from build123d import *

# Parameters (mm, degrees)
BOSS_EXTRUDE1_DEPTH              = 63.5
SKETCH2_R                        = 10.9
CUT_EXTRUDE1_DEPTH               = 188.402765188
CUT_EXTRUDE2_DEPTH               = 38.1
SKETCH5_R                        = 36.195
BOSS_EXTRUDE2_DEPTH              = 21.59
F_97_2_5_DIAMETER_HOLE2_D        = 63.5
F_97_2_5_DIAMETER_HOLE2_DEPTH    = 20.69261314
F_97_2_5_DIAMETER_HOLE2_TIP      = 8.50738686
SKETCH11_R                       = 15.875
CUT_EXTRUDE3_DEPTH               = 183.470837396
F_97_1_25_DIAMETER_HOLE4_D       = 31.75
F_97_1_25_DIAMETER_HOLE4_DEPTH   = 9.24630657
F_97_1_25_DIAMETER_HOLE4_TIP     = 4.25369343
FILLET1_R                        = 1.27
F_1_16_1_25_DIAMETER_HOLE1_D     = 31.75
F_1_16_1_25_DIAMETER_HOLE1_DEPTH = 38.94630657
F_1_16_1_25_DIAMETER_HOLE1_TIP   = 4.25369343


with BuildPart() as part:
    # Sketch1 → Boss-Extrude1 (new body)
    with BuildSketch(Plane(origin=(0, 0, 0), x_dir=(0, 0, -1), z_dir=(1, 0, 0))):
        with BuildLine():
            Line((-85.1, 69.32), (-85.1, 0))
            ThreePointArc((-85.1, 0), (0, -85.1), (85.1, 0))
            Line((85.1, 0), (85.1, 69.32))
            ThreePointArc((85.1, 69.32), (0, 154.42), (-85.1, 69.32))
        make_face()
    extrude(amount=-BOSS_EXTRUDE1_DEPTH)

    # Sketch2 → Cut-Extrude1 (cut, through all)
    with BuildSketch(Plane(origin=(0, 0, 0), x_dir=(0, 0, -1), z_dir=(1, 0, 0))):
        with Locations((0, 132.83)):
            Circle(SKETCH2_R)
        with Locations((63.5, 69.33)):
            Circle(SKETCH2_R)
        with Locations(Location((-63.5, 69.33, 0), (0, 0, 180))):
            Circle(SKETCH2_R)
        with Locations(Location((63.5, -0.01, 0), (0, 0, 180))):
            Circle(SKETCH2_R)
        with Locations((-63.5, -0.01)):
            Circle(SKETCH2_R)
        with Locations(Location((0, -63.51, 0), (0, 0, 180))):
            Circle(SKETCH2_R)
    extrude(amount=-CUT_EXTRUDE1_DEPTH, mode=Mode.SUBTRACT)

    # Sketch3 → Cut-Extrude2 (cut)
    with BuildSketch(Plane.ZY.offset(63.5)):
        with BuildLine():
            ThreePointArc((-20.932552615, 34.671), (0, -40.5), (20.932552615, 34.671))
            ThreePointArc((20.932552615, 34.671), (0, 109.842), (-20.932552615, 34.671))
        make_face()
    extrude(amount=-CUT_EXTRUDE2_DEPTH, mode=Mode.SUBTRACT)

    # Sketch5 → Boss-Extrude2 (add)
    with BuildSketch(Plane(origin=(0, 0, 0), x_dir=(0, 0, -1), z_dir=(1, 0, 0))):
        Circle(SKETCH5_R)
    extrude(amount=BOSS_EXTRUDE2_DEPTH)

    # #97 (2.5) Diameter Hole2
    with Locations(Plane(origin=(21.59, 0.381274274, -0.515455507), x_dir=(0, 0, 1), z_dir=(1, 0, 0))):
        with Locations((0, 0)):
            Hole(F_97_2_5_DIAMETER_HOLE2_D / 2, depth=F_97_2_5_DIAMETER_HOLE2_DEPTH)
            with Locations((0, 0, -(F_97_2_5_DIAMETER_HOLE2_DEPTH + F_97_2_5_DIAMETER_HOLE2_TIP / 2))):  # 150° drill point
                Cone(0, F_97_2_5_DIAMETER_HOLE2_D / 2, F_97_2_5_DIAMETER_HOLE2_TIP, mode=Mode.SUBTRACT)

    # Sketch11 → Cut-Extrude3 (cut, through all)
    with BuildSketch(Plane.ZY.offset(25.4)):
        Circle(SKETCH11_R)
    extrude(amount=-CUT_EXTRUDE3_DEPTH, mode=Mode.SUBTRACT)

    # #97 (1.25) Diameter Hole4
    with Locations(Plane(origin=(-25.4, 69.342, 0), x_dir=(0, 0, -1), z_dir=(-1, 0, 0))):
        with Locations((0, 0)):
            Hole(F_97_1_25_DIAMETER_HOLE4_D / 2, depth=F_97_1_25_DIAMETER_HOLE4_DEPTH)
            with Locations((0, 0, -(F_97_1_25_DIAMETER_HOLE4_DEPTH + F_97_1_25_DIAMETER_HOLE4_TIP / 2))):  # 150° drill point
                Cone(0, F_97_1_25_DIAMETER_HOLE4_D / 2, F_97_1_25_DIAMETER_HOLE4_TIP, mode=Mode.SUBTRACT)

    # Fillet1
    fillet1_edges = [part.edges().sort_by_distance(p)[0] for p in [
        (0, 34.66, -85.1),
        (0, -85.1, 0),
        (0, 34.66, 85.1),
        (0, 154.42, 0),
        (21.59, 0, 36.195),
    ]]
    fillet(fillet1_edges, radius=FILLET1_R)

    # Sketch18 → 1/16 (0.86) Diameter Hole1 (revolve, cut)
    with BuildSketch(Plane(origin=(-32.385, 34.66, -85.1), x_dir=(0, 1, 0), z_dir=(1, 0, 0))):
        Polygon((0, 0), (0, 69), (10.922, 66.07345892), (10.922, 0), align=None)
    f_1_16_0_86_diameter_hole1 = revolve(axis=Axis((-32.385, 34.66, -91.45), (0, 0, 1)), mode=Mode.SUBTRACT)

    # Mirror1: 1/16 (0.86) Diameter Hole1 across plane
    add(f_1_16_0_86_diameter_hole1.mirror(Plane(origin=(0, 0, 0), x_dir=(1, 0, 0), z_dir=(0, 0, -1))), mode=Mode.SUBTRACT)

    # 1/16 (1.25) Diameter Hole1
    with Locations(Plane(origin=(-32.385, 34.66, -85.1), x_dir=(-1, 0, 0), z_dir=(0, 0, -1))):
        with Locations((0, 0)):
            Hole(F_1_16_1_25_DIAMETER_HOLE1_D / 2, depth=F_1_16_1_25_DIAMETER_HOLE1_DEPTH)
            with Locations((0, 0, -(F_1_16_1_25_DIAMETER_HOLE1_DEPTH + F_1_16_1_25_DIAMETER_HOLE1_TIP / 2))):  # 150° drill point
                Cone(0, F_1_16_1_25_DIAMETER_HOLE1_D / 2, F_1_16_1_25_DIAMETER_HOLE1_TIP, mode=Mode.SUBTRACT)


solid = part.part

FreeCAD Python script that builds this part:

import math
import FreeCAD as App
import Part
import Sketcher
Q = App.Units.Quantity


def edges_at(feature, points):
    """Names of the edges that pass closest to the given points."""
    edges = feature.Shape.Edges
    near = lambda p: min(range(len(edges)), key=lambda i: edges[i].distToShape(Part.Vertex(*p))[0])
    return sorted({f"Edge{near(p) + 1}" for p in points})


def add_polygon(sketch, points):
    """Adds a closed chain of lines whose ends are joined by coincident constraints."""
    first, n = sketch.GeometryCount, len(points)
    for a, b in zip(points, points[1:] + points[:1]):
        sketch.addGeometry(Part.LineSegment(App.Vector(*a, 0), App.Vector(*b, 0)), False)
    for i in range(n):
        sketch.addConstraint(Sketcher.Constraint("Coincident", first + i, 2, first + (i + 1) % n, 1))

doc = App.newDocument("Part")
params = doc.addObject("Spreadsheet::Sheet", "Params")
for row, (alias, value) in enumerate([
    ("pad1_length", "2.5 in"),
    ("pocket2_length", "1.5 in"),
    ("sketch4_diameter", "2.85 in"),
    ("pad2_length", "0.85 in"),
    ("sketch5_diameter", "2.5 in"),
    ("hole_diameter", "2.5 in"),
    ("hole_depth", "20.692613 mm"),
    ("sketch6_diameter", "1.25 in"),
    ("sketch7_diameter", "1.25 in"),
    ("hole2_diameter", "1.25 in"),
    ("hole2_depth", "9.246307 mm"),
    ("fillet_radius", "0.05 in"),
    ("sketch8_width", "0.43 in"),
    ("groove_angle", "360 deg"),
    ("sketch9_diameter", "1.25 in"),
    ("hole3_diameter", "1.25 in"),
    ("hole3_depth", "38.946307 mm"),
], start=1):
    params.set(f"A{row}", alias)
    params.set(f"B{row}", "=" + value)
    params.setAlias(f"B{row}", alias)

body = doc.addObject("PartDesign::Body", "Body")

# Sketch on YZ plane
sketch1 = doc.addObject("Sketcher::SketchObject", "Sketch")
body.addObject(sketch1)
sketch1.AttachmentSupport = (doc.YZ_Plane, [""])
sketch1.MapMode = "FlatFace"
sketch1.addGeometry(Part.LineSegment(App.Vector(69, 85, 0), App.Vector(0, 85, 0)), False)
sketch1.addGeometry(Part.ArcOfCircle(Part.Circle(App.Vector(0, 0, 0), App.Vector(0, 0, 1), 85), math.radians(90), math.radians(270)), False)
sketch1.addGeometry(Part.LineSegment(App.Vector(0, -85, 0), App.Vector(69, -85, 0)), False)
sketch1.addGeometry(Part.ArcOfCircle(Part.Circle(App.Vector(69, 0, 0), App.Vector(0, 0, 1), 85), math.radians(-90), math.radians(90)), False)
sketch1.addConstraint(Sketcher.Constraint("Tangent", 0, 2, 1, 1))
sketch1.addConstraint(Sketcher.Constraint("Tangent", 1, 2, 2, 1))
sketch1.addConstraint(Sketcher.Constraint("Tangent", 2, 2, 3, 1))
sketch1.addConstraint(Sketcher.Constraint("Tangent", 3, 2, 0, 1))
sketch1.addConstraint(Sketcher.Constraint("Horizontal", 0))
sketch1.addConstraint(Sketcher.Constraint("Horizontal", 2))
sketch1.addConstraint(Sketcher.Constraint("Coincident", 1, 3, -1, 1))
sketch1.addConstraint(Sketcher.Constraint("Radius", 1, Q("85.1 mm")))
sketch1.addConstraint(Sketcher.Constraint("DistanceX", 0, 2, 0, 1, Q("69.32 mm")))
pad1 = doc.addObject("PartDesign::Pad", "Pad")
body.addObject(pad1)
pad1.Profile = sketch1
pad1.setExpression("Length", "Params.pad1_length")
pad1.Reversed = True

# Sketch on YZ plane
sketch2 = doc.addObject("Sketcher::SketchObject", "Sketch001")
body.addObject(sketch2)
sketch2.AttachmentSupport = (doc.YZ_Plane, [""])
sketch2.MapMode = "FlatFace"
sketch2.addGeometry(Part.Circle(App.Vector(133, 0, 0), App.Vector(0, 0, 1), 11), False)
sketch2.addGeometry(Part.Circle(App.Vector(69, -64, 0), App.Vector(0, 0, 1), 11), False)
sketch2.addGeometry(Part.Circle(App.Vector(69, 64, 0), App.Vector(0, 0, 1), 11), False)
sketch2.addGeometry(Part.Circle(App.Vector(0, -64, 0), App.Vector(0, 0, 1), 11), False)
sketch2.addGeometry(Part.Circle(App.Vector(0, 64, 0), App.Vector(0, 0, 1), 11), False)
sketch2.addGeometry(Part.Circle(App.Vector(-64, 0, 0), App.Vector(0, 0, 1), 11), False)
sketch2.addConstraint(Sketcher.Constraint("Equal", 0, 1))
sketch2.addConstraint(Sketcher.Constraint("Equal", 1, 2))
sketch2.addConstraint(Sketcher.Constraint("Equal", 2, 3))
sketch2.addConstraint(Sketcher.Constraint("Equal", 3, 4))
sketch2.addConstraint(Sketcher.Constraint("Equal", 4, 5))
sketch2.addConstraint(Sketcher.Constraint("Symmetric", 1, 3, 2, 3, -1))
sketch2.addConstraint(Sketcher.Constraint("Symmetric", 3, 3, 4, 3, -1))
sketch2.addConstraint(Sketcher.Constraint("PointOnObject", 0, 3, -1))
sketch2.addConstraint(Sketcher.Constraint("PointOnObject", 5, 3, -1))
sketch2.addConstraint(Sketcher.Constraint("Horizontal", 1, 3, 3, 3))
sketch2.addConstraint(Sketcher.Constraint("DistanceY", 1, 3, 2, 3, Q("5 in")))
sketch2.addConstraint(Sketcher.Constraint("DistanceX", 1, 3, 0, 3, Q("2.5 in")))
sketch2.addConstraint(Sketcher.Constraint("DistanceX", 5, 3, 3, 3, Q("2.5 in")))
sketch2.addConstraint(Sketcher.Constraint("Diameter", 0, Q("21.8 mm")))
sketch2.addConstraint(Sketcher.Constraint("DistanceX", -1, 1, 0, 3, Q("132.83 mm")))
sketch2.addConstraint(Sketcher.Constraint("DistanceX", 3, 3, -1, 1, Q("0.01 mm")))
pocket1 = doc.addObject("PartDesign::Pocket", "Pocket")
body.addObject(pocket1)
pocket1.Profile = sketch2
pocket1.Type = "ThroughAll"

# Sketch on YZ plane
sketch3 = doc.addObject("Sketcher::SketchObject", "Sketch002")
body.addObject(sketch3)
sketch3.AttachmentSupport = (doc.YZ_Plane, [""])
sketch3.MapMode = "FlatFace"
sketch3.AttachmentOffset = App.Placement(App.Vector(0, 0, -2.5 * 25.4), App.Rotation())
sketch3.addGeometry(Part.ArcOfCircle(Part.Circle(App.Vector(0, 0, 0), App.Vector(0, 0, 1), 40), math.radians(31), math.radians(329)), False)
sketch3.addGeometry(Part.ArcOfCircle(Part.Circle(App.Vector(69, 0, 0), App.Vector(0, 0, 1), 40), math.radians(-149), math.radians(149)), False)
sketch3.addConstraint(Sketcher.Constraint("Coincident", 0, 1, 1, 2))
sketch3.addConstraint(Sketcher.Constraint("Coincident", 1, 1, 0, 2))
sketch3.addConstraint(Sketcher.Constraint("Coincident", 0, 3, -1, 1))
sketch3.addConstraint(Sketcher.Constraint("Equal", 0, 1))
sketch3.addConstraint(Sketcher.Constraint("PointOnObject", 1, 3, -1))
sketch3.addConstraint(Sketcher.Constraint("DistanceX", -1, 1, 1, 3, Q("2.73 in")))
sketch3.addConstraint(Sketcher.Constraint("Radius", 0, Q("40.5 mm")))
pocket2 = doc.addObject("PartDesign::Pocket", "Pocket001")
body.addObject(pocket2)
pocket2.Profile = sketch3
pocket2.setExpression("Length", "Params.pocket2_length")
pocket2.Reversed = True

# Sketch on YZ plane
sketch4 = doc.addObject("Sketcher::SketchObject", "Sketch003")
body.addObject(sketch4)
sketch4.AttachmentSupport = (doc.YZ_Plane, [""])
sketch4.MapMode = "FlatFace"
sketch4.addGeometry(Part.Circle(App.Vector(0, 0, 0), App.Vector(0, 0, 1), 36), False)
sketch4.addConstraint(Sketcher.Constraint("Coincident", 0, 3, -1, 1))
sketch4.addConstraint(Sketcher.Constraint("Diameter", 0, Q("2.85 in")))
sketch4.setExpression("Constraints[1]", "Params.sketch4_diameter")
pad2 = doc.addObject("PartDesign::Pad", "Pad001")
body.addObject(pad2)
pad2.Profile = sketch4
pad2.setExpression("Length", "Params.pad2_length")

# Sketch on YZ plane
sketch5 = doc.addObject("Sketcher::SketchObject", "Sketch004")
body.addObject(sketch5)
sketch5.AttachmentSupport = (doc.YZ_Plane, [""])
sketch5.MapMode = "FlatFace"
sketch5.AttachmentOffset = App.Placement(App.Vector(0, 0, 0.85 * 25.4), App.Rotation())
sketch5.addGeometry(Part.Circle(App.Vector(0, -1, 0), App.Vector(0, 0, 1), 32), False)
sketch5.addConstraint(Sketcher.Constraint("Diameter", 0, Q("2.5 in")))
sketch5.addConstraint(Sketcher.Constraint("DistanceX", -1, 1, 0, 3, Q("0.381274 mm")))
sketch5.addConstraint(Sketcher.Constraint("DistanceY", 0, 3, -1, 1, Q("0.515456 mm")))
sketch5.setExpression("Constraints[0]", "Params.sketch5_diameter")
doc.recompute()
hole = doc.addObject("PartDesign::Hole", "Hole")
body.addObject(hole)
hole.Profile = sketch5
hole.ThreadType = "None"
hole.setExpression("Diameter", "Params.hole_diameter")
hole.DepthType = "Dimension"
hole.setExpression("Depth", "Params.hole_depth")
hole.DrillPoint = "Angled"
hole.DrillPointAngle = 150

# Sketch on YZ plane
sketch6 = doc.addObject("Sketcher::SketchObject", "Sketch005")
body.addObject(sketch6)
sketch6.AttachmentSupport = (doc.YZ_Plane, [""])
sketch6.MapMode = "FlatFace"
sketch6.AttachmentOffset = App.Placement(App.Vector(0, 0, -1 * 25.4), App.Rotation())
sketch6.addGeometry(Part.Circle(App.Vector(0, 0, 0), App.Vector(0, 0, 1), 16), False)
sketch6.addConstraint(Sketcher.Constraint("Coincident", 0, 3, -1, 1))
sketch6.addConstraint(Sketcher.Constraint("Diameter", 0, Q("1.25 in")))
sketch6.setExpression("Constraints[1]", "Params.sketch6_diameter")
pocket3 = doc.addObject("PartDesign::Pocket", "Pocket002")
body.addObject(pocket3)
pocket3.Profile = sketch6
pocket3.Type = "ThroughAll"
pocket3.Reversed = True

# Sketch on YZ plane
sketch7 = doc.addObject("Sketcher::SketchObject", "Sketch006")
body.addObject(sketch7)
sketch7.AttachmentSupport = (doc.YZ_Plane, [""])
sketch7.MapMode = "FlatFace"
sketch7.AttachmentOffset = App.Placement(App.Vector(0, 0, -1 * 25.4), App.Rotation())
sketch7.addGeometry(Part.Circle(App.Vector(69, 0, 0), App.Vector(0, 0, 1), 16), False)
sketch7.addConstraint(Sketcher.Constraint("PointOnObject", 0, 3, -1))
sketch7.addConstraint(Sketcher.Constraint("Diameter", 0, Q("1.25 in")))
sketch7.addConstraint(Sketcher.Constraint("DistanceX", -1, 1, 0, 3, Q("2.73 in")))
sketch7.setExpression("Constraints[1]", "Params.sketch7_diameter")
doc.recompute()
hole2 = doc.addObject("PartDesign::Hole", "Hole001")
body.addObject(hole2)
hole2.Profile = sketch7
hole2.ThreadType = "None"
hole2.setExpression("Diameter", "Params.hole2_diameter")
hole2.DepthType = "Dimension"
hole2.setExpression("Depth", "Params.hole2_depth")
hole2.DrillPoint = "Angled"
hole2.DrillPointAngle = 150
hole2.Reversed = True
doc.recompute()

fillet = doc.addObject("PartDesign::Fillet", "Fillet")
body.addObject(fillet)
fillet.Base = (hole2, edges_at(hole2, [
    (0, 34.66, -85.1),
    (0, -85.1, 0),
    (0, 34.66, 85.1),
    (0, 154.42, 0),
    (21.59, 0, 36.195),
]))
fillet.setExpression("Radius", "Params.fillet_radius")

# Sketch on YZ plane
sketch8 = doc.addObject("Sketcher::SketchObject", "Sketch007")
body.addObject(sketch8)
sketch8.AttachmentSupport = (doc.YZ_Plane, [""])
sketch8.MapMode = "FlatFace"
sketch8.AttachmentOffset = App.Placement(App.Vector(0, 0, -1.275 * 25.4), App.Rotation())
add_polygon(sketch8, [(35, -16), (35, -85), (46, -85), (46, -19)])  # lines 0-3
sketch8.addGeometry(Part.LineSegment(App.Vector(35, -85, 0), App.Vector(35, -16, 0)), True)  # axis
sketch8.addConstraint(Sketcher.Constraint("Vertical", 0))
sketch8.addConstraint(Sketcher.Constraint("Horizontal", 1))
sketch8.addConstraint(Sketcher.Constraint("Vertical", 2))
sketch8.addConstraint(Sketcher.Constraint("Vertical", 4))
sketch8.addConstraint(Sketcher.Constraint("Coincident", 4, 1, 0, 2))
sketch8.addConstraint(Sketcher.Constraint("Equal", 0, 4))
sketch8.addConstraint(Sketcher.Constraint("Angle", 3, Q("165 deg")))
sketch8.addConstraint(Sketcher.Constraint("DistanceX", 1, 1, 1, 2, Q("0.43 in")))
sketch8.addConstraint(Sketcher.Constraint("DistanceY", 0, 2, 0, 1, Q("69 mm")))
sketch8.addConstraint(Sketcher.Constraint("DistanceX", -1, 1, 0, 2, Q("34.66 mm")))
sketch8.addConstraint(Sketcher.Constraint("DistanceY", 0, 2, -1, 1, Q("85.1 mm")))
sketch8.setExpression("Constraints[11]", "Params.sketch8_width")
groove = doc.addObject("PartDesign::Groove", "Groove")
body.addObject(groove)
groove.Profile = sketch8
groove.ReferenceAxis = (sketch8, ["Axis0"])
groove.setExpression("Angle", "Params.groove_angle")
doc.recompute()

mirrored = doc.addObject("PartDesign::Mirrored", "Mirrored")
body.addObject(mirrored)
mirrored.Originals = [groove]
mirrored.MirrorPlane = (doc.XY_Plane, [""])
body.Tip = mirrored

# Sketch on XY plane
sketch9 = doc.addObject("Sketcher::SketchObject", "Sketch008")
body.addObject(sketch9)
sketch9.AttachmentSupport = (doc.XY_Plane, [""])
sketch9.MapMode = "FlatFace"
sketch9.AttachmentOffset = App.Placement(App.Vector(0, 0, -85.1), App.Rotation())
sketch9.addGeometry(Part.Circle(App.Vector(-32, 35, 0), App.Vector(0, 0, 1), 16), False)
sketch9.addConstraint(Sketcher.Constraint("Diameter", 0, Q("1.25 in")))
sketch9.addConstraint(Sketcher.Constraint("DistanceX", 0, 3, -1, 1, Q("1.275 in")))
sketch9.addConstraint(Sketcher.Constraint("DistanceY", -1, 1, 0, 3, Q("34.66 mm")))
sketch9.setExpression("Constraints[0]", "Params.sketch9_diameter")
doc.recompute()
hole3 = doc.addObject("PartDesign::Hole", "Hole002")
body.addObject(hole3)
hole3.Profile = sketch9
hole3.ThreadType = "None"
hole3.setExpression("Diameter", "Params.hole3_diameter")
hole3.DepthType = "Dimension"
hole3.setExpression("Depth", "Params.hole3_depth")
hole3.DrillPoint = "Angled"
hole3.DrillPointAngle = 150
hole3.Reversed = True

doc.recompute()
